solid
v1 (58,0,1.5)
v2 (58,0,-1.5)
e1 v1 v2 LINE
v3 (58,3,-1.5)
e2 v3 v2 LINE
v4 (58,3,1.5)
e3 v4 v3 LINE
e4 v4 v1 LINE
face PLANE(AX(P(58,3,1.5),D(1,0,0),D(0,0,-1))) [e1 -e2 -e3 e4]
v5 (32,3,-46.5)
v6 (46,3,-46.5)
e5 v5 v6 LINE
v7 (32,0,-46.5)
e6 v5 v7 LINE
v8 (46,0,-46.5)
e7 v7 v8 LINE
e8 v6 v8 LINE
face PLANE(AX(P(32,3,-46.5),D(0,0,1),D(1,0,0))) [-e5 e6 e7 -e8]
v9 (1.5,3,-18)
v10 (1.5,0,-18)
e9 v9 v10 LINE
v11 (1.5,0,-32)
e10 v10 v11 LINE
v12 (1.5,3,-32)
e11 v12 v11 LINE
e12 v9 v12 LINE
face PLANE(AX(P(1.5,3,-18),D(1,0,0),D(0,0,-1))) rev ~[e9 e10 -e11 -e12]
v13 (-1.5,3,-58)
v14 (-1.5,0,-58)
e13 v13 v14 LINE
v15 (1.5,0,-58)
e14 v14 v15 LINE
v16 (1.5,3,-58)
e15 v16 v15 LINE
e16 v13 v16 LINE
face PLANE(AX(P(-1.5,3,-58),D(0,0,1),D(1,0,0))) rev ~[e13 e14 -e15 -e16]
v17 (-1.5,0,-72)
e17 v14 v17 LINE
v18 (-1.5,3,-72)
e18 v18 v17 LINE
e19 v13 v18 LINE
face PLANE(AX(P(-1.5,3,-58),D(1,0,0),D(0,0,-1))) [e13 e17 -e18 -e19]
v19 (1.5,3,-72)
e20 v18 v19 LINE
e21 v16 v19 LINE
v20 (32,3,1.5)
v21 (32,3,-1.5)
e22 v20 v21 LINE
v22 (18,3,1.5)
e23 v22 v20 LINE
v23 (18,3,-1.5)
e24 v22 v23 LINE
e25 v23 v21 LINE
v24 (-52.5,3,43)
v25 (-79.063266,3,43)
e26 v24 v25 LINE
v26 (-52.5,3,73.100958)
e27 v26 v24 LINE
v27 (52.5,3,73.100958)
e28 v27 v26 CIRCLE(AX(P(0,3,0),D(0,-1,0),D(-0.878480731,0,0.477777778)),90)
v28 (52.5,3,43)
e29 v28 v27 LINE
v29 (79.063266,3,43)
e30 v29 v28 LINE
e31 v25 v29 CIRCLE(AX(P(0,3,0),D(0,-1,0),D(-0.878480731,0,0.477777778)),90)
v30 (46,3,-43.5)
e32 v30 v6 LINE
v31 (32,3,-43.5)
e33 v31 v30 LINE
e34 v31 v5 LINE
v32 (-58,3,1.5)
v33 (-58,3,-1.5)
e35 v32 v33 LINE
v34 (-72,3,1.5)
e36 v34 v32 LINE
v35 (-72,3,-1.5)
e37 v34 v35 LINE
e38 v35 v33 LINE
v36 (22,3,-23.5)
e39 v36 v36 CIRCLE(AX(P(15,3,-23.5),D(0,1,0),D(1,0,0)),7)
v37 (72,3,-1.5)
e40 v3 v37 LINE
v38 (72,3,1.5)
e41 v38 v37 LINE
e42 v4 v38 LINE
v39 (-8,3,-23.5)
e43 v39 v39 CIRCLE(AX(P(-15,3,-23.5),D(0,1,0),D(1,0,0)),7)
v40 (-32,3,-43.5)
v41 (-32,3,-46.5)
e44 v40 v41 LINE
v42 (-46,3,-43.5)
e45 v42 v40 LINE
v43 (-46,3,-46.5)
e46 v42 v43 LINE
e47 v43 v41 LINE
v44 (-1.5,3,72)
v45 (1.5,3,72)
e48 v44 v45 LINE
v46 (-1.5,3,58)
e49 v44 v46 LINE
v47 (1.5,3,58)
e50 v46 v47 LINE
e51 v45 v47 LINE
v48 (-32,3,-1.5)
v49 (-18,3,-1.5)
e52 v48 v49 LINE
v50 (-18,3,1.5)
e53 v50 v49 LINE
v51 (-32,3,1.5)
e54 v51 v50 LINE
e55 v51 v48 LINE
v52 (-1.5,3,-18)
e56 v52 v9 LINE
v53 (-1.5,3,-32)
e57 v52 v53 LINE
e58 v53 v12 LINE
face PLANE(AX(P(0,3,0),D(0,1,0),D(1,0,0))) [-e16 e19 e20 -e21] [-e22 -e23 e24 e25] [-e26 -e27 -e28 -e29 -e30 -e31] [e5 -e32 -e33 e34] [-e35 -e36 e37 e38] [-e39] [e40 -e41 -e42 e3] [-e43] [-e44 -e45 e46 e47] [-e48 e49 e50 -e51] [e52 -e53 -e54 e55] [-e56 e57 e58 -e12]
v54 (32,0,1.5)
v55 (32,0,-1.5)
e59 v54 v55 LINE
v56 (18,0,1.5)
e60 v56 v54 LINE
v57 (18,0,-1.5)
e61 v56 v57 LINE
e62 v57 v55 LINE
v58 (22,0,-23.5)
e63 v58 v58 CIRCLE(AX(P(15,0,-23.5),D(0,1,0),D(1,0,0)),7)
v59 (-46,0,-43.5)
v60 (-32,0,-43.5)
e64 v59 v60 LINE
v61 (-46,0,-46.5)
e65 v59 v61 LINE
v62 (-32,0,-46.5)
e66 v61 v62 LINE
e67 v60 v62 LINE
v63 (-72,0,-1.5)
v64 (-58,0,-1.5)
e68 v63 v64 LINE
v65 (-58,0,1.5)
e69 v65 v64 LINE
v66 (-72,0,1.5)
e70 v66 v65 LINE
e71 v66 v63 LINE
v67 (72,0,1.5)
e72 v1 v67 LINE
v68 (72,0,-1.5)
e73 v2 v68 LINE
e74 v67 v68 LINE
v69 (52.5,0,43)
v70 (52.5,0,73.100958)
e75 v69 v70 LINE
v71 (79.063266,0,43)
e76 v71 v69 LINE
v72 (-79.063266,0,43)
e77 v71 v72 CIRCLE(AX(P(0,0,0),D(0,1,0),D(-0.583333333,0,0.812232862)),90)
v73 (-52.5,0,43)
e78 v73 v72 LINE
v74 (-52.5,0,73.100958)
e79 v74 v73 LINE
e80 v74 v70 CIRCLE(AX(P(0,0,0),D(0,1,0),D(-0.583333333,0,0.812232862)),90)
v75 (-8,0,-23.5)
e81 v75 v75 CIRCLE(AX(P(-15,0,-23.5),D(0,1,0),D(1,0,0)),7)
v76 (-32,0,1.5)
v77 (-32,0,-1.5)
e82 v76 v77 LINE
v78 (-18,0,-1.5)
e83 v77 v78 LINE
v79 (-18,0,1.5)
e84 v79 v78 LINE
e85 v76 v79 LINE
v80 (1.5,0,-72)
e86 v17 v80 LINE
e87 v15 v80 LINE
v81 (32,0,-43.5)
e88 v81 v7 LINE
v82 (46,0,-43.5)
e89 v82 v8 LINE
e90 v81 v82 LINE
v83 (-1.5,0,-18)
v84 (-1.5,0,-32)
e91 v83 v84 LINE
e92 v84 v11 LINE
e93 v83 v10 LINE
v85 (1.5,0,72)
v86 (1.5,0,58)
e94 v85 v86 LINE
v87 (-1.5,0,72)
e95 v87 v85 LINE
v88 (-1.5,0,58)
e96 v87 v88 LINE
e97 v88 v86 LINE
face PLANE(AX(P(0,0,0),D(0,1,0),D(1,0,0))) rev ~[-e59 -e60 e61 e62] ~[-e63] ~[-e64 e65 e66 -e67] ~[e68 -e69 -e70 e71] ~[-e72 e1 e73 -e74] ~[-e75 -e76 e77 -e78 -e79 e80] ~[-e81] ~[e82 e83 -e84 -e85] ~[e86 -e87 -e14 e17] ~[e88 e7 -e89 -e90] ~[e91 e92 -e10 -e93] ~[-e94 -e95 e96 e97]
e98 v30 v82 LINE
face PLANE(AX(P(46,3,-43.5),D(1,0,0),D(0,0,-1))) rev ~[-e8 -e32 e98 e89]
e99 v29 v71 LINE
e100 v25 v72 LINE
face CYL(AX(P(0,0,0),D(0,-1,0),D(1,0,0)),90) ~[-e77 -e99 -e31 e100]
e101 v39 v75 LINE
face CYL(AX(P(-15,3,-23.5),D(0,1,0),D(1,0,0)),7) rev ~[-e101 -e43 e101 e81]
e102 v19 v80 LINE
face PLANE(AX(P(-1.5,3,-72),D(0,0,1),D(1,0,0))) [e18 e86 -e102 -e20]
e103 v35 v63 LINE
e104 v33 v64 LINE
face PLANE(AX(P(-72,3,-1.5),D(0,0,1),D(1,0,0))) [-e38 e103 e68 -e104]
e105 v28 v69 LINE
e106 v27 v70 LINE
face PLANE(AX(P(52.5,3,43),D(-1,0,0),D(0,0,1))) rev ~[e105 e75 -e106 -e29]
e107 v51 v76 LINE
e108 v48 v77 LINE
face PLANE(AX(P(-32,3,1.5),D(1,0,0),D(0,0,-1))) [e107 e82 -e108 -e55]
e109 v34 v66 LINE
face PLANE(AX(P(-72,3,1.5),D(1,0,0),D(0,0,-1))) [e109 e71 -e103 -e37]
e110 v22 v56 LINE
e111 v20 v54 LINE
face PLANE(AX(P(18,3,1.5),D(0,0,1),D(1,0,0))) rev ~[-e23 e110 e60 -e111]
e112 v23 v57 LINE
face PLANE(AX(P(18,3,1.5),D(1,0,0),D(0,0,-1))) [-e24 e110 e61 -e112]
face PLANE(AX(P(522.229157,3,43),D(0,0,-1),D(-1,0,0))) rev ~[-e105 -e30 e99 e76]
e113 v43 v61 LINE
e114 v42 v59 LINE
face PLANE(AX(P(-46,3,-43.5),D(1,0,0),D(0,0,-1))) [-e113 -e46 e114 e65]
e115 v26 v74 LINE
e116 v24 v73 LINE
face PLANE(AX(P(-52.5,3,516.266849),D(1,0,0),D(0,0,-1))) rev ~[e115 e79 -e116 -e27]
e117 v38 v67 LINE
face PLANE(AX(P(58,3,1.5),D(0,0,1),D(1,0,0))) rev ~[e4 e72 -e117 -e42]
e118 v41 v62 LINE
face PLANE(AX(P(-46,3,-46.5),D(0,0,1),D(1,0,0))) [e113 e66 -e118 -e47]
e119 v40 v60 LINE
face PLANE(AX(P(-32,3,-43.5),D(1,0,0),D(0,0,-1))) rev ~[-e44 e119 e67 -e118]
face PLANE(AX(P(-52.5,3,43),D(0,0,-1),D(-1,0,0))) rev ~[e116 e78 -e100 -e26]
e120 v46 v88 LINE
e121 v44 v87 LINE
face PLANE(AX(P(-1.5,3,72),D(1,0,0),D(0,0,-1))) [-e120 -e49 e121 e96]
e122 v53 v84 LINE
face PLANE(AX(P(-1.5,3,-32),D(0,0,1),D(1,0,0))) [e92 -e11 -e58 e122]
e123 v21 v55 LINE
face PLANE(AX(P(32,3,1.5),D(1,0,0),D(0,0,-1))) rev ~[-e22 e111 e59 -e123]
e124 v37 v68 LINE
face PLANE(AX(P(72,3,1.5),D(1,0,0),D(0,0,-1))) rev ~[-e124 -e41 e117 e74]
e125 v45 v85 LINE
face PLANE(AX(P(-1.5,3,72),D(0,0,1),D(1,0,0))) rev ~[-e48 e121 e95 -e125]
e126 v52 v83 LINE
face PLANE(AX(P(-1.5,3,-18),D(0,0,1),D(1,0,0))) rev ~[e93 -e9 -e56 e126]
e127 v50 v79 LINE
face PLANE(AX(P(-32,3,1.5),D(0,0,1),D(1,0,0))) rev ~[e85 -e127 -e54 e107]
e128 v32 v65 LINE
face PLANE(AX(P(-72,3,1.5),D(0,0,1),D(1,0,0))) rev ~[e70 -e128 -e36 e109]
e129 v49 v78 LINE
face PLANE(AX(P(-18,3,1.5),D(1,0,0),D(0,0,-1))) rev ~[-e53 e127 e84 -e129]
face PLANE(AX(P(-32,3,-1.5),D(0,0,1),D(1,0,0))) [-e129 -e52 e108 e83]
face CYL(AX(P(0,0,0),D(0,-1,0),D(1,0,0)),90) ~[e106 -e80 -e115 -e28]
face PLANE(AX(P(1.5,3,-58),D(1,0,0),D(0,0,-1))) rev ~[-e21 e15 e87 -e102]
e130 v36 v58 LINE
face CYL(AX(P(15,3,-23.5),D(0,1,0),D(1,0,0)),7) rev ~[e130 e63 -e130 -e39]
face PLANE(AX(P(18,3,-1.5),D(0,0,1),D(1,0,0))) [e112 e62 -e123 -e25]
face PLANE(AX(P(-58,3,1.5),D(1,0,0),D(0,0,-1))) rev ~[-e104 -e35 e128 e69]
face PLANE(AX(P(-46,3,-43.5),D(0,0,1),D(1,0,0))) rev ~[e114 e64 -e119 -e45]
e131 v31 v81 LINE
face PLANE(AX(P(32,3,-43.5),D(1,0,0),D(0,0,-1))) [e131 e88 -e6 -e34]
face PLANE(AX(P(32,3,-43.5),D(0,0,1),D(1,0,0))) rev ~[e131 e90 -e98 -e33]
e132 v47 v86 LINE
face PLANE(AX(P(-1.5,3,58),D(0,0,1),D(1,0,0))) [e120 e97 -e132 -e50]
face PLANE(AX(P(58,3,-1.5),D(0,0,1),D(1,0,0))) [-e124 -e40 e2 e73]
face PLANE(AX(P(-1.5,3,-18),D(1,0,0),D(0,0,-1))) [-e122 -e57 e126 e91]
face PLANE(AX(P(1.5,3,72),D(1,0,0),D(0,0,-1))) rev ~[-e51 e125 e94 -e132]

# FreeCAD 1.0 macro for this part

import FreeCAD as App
import Part
import Sketcher

V = App.Vector
Q = App.Units.Quantity


def add_polygon(sketch, points):
    """Adds a closed chain of lines whose ends are joined by coincident constraints."""
    first, n = sketch.GeometryCount, len(points)
    for a, b in zip(points, points[1:] + points[:1]):
        sketch.addGeometry(Part.LineSegment(App.Vector(*a, 0), App.Vector(*b, 0)), False)
    for i in range(n):
        sketch.addConstraint(Sketcher.Constraint("Coincident", first + i, 2, first + (i + 1) % n, 1))

doc = App.newDocument("Part")
body = doc.addObject("PartDesign::Body", "Body")

# Sketch on XZ plane
sketch1 = body.newObject("Sketcher::SketchObject", "Sketch")
sketch1.AttachmentSupport = (doc.getObject("XZ_Plane"), [""])
sketch1.MapMode = "FlatFace"
sketch1.addGeometry(Part.Circle(V(0, 0, 0), V(0, 0, 1), 90), False)
sketch1.addConstraint(Sketcher.Constraint("Coincident", 0, 3, -1, 1))
sketch1.addConstraint(Sketcher.Constraint("Diameter", 0, Q("180 mm")))
pad1 = body.newObject("PartDesign::Pad", "Pad")
pad1.Profile = sketch1
pad1.Length = 3
pad1.Reversed = True

# Sketch on XZ plane
sketch2 = body.newObject("Sketcher::SketchObject", "Sketch001")
sketch2.AttachmentSupport = (doc.getObject("XZ_Plane"), [""])
sketch2.MapMode = "FlatFace"
sketch2.AttachmentOffset = App.Placement(V(0, 0, -3), App.Rotation())
add_polygon(sketch2, [(-52.5, 516.266849), (-52.5, 43), (-522.229157, 43), (-1151.307155, 667.37561), (-681.577997, 1140.642459)])  # lines 0-4
sketch2.addConstraint(Sketcher.Constraint("Vertical", 0))
sketch2.addConstraint(Sketcher.Constraint("Horizontal", 1))
sketch2.addConstraint(Sketcher.Constraint("Perpendicular", 2, 3))
sketch2.addConstraint(Sketcher.Constraint("Perpendicular", 3, 4))
sketch2.addConstraint(Sketcher.Constraint("Equal", 2, 4))
sketch2.addConstraint(Sketcher.Constraint("DistanceY", -1, 1, 0, 2, Q("43 mm")))
sketch2.addConstraint(Sketcher.Constraint("DistanceX", 0, 2, -1, 1, Q("52.5 mm")))
sketch2.addConstraint(Sketcher.Constraint("DistanceY", 0, 2, 0, 1, Q("473.266849 mm")))
sketch2.addConstraint(Sketcher.Constraint("DistanceX", 1, 2, 1, 1, Q("469.729157 mm")))
sketch2.addConstraint(Sketcher.Constraint("DistanceY", -1, 1, 2, 2, Q("667.37561 mm")))
pocket1 = body.newObject("PartDesign::Pocket", "Pocket")
pocket1.Profile = sketch2
pocket1.Type = "ThroughAll"
pocket1.Midplane = True

# Sketch on XZ plane
sketch3 = body.newObject("Sketcher::SketchObject", "Sketch002")
sketch3.AttachmentSupport = (doc.getObject("XZ_Plane"), [""])
sketch3.MapMode = "FlatFace"
sketch3.AttachmentOffset = App.Placement(V(0, 0, -3), App.Rotation())
add_polygon(sketch3, [(52.5, 43), (52.5, 516.266849), (681.577997, 1140.642459), (1151.307155, 667.37561), (522.229157, 43)])  # lines 0-4
sketch3.addConstraint(Sketcher.Constraint("Vertical", 0))
sketch3.addConstraint(Sketcher.Constraint("Horizontal", 4))
sketch3.addConstraint(Sketcher.Constraint("Perpendicular", 1, 2))
sketch3.addConstraint(Sketcher.Constraint("Perpendicular", 2, 3))
sketch3.addConstraint(Sketcher.Constraint("Equal", 1, 3))
sketch3.addConstraint(Sketcher.Constraint("DistanceY", -1, 1, 3, 2, Q("43 mm")))
sketch3.addConstraint(Sketcher.Constraint("DistanceX", -1, 1, 0, 2, Q("52.5 mm")))
sketch3.addConstraint(Sketcher.Constraint("DistanceY", 0, 1, 0, 2, Q("473.266849 mm")))
sketch3.addConstraint(Sketcher.Constraint("DistanceX", 4, 2, 4, 1, Q("469.729157 mm")))
sketch3.addConstraint(Sketcher.Constraint("DistanceY", -1, 1, 1, 2, Q("1140.642459 mm")))
pocket2 = body.newObject("PartDesign::Pocket", "Pocket001")
pocket2.Profile = sketch3
pocket2.Type = "ThroughAll"
pocket2.Midplane = True

# Sketch on XZ plane
sketch4 = body.newObject("Sketcher::SketchObject", "Sketch003")
sketch4.AttachmentSupport = (doc.getObject("XZ_Plane"), [""])
sketch4.MapMode = "FlatFace"
sketch4.AttachmentOffset = App.Placement(V(0, 0, -3), App.Rotation())
add_polygon(sketch4, [(-1.5, -32), (-1.5, -18), (1.5, -18), (1.5, -32)])  # lines 0-3
sketch4.addConstraint(Sketcher.Constraint("Vertical", 0))
sketch4.addConstraint(Sketcher.Constraint("Horizontal", 1))
sketch4.addConstraint(Sketcher.Constraint("Vertical", 2))
sketch4.addConstraint(Sketcher.Constraint("Horizontal", 3))
sketch4.addConstraint(Sketcher.Constraint("DistanceX", 1, 1, 1, 2, Q("3 mm")))
sketch4.addConstraint(Sketcher.Constraint("DistanceY", 0, 1, 0, 2, Q("14 mm")))
sketch4.addConstraint(Sketcher.Constraint("DistanceY", 0, 2, -1, 1, Q("18 mm")))
sketch4.addConstraint(Sketcher.Constraint("DistanceX", 0, 2, -1, 1, Q("1.5 mm")))
pocket3 = body.newObject("PartDesign::Pocket", "Pocket002")
pocket3.Profile = sketch4
pocket3.Length = 3
pocket3.Reversed = True

# Sketch on XZ plane
sketch5 = body.newObject("Sketcher::SketchObject", "Sketch004")
sketch5.AttachmentSupport = (doc.getObject("XZ_Plane"), [""])
sketch5.MapMode = "FlatFace"
sketch5.AttachmentOffset = App.Placement(V(0, 0, -3), App.Rotation())
add_polygon(sketch5, [(-1.5, -72), (-1.5, -58), (1.5, -58), (1.5, -72)])  # lines 0-3
sketch5.addConstraint(Sketcher.Constraint("Vertical", 0))
sketch5.addConstraint(Sketcher.Constraint("Horizontal", 1))
sketch5.addConstraint(Sketcher.Constraint("Vertical", 2))
sketch5.addConstraint(Sketcher.Constraint("Horizontal", 3))
sketch5.addConstraint(Sketcher.Constraint("DistanceX", 1, 1, 1, 2, Q("3 mm")))
sketch5.addConstraint(Sketcher.Constraint("DistanceY", 0, 1, 0, 2, Q("14 mm")))
sketch5.addConstraint(Sketcher.Constraint("DistanceY", 0, 2, -1, 1, Q("58 mm")))
sketch5.addConstraint(Sketcher.Constraint("DistanceX", 0, 2, -1, 1, Q("1.5 mm")))
pocket4 = body.newObject("PartDesign::Pocket", "Pocket003")
pocket4.Profile = sketch5
pocket4.Length = 3
pocket4.Reversed = True

# Sketch on XZ plane
sketch6 = body.newObject("Sketcher::SketchObject", "Sketch005")
sketch6.AttachmentSupport = (doc.getObject("XZ_Plane"), [""])
sketch6.MapMode = "FlatFace"
sketch6.AttachmentOffset = App.Placement(V(0, 0, -3), App.Rotation())
add_polygon(sketch6, [(-1.5, 58), (-1.5, 72), (1.5, 72), (1.5, 58)])  # lines 0-3
sketch6.addConstraint(Sketcher.Constraint("Vertical", 0))
sketch6.addConstraint(Sketcher.Constraint("Horizontal", 1))
sketch6.addConstraint(Sketcher.Constraint("Vertical", 2))
sketch6.addConstraint(Sketcher.Constraint("Horizontal", 3))
sketch6.addConstraint(Sketcher.Constraint("DistanceX", 1, 1, 1, 2, Q("3 mm")))
sketch6.addConstraint(Sketcher.Constraint("DistanceY", 0, 1, 0, 2, Q("14 mm")))
sketch6.addConstraint(Sketcher.Constraint("DistanceY", -1, 1, 0, 2, Q("72 mm")))
sketch6.addConstraint(Sketcher.Constraint("DistanceX", 0, 2, -1, 1, Q("1.5 mm")))
pocket5 = body.newObject("PartDesign::Pocket", "Pocket004")
pocket5.Profile = sketch6
pocket5.Length = 3
pocket5.Reversed = True

# Sketch on XZ plane
sketch7 = body.newObject("Sketcher::SketchObject", "Sketch006")
sketch7.AttachmentSupport = (doc.getObject("XZ_Plane"), [""])
sketch7.MapMode = "FlatFace"
sketch7.AttachmentOffset = App.Placement(V(0, 0, -3), App.Rotation())
add_polygon(sketch7, [(-32, -1.5), (-32, 1.5), (-18, 1.5), (-18, -1.5)])  # lines 0-3
sketch7.addConstraint(Sketcher.Constraint("Vertical", 0))
sketch7.addConstraint(Sketcher.Constraint("Horizontal", 1))
sketch7.addConstraint(Sketcher.Constraint("Vertical", 2))
sketch7.addConstraint(Sketcher.Constraint("Horizontal", 3))
sketch7.addConstraint(Sketcher.Constraint("DistanceX", 1, 1, 1, 2, Q("14 mm")))
sketch7.addConstraint(Sketcher.Constraint("DistanceY", 0, 1, 0, 2, Q("3 mm")))
sketch7.addConstraint(Sketcher.Constraint("DistanceX", 0, 2, -1, 1, Q("32 mm")))
sketch7.addConstraint(Sketcher.Constraint("DistanceY", -1, 1, 0, 2, Q("1.5 mm")))
pocket6 = body.newObject("PartDesign::Pocket", "Pocket005")
pocket6.Profile = sketch7
pocket6.Length = 3
pocket6.Reversed = True

# Sketch on XZ plane
sketch8 = body.newObject("Sketcher::SketchObject", "Sketch007")
sketch8.AttachmentSupport = (doc.getObject("XZ_Plane"), [""])
sketch8.MapMode = "FlatFace"
sketch8.AttachmentOffset = App.Placement(V(0, 0, -3), App.Rotation())
add_polygon(sketch8, [(-72, -1.5), (-72, 1.5), (-58, 1.5), (-58, -1.5)])  # lines 0-3
sketch8.addConstraint(Sketcher.Constraint("Vertical", 0))
sketch8.addConstraint(Sketcher.Constraint("Horizontal", 1))
sketch8.addConstraint(Sketcher.Constraint("Vertical", 2))
sketch8.addConstraint(Sketcher.Constraint("Horizontal", 3))
sketch8.addConstraint(Sketcher.Constraint("DistanceX", 1, 1, 1, 2, Q("14 mm")))
sketch8.addConstraint(Sketcher.Constraint("DistanceY", 0, 1, 0, 2, Q("3 mm")))
sketch8.addConstraint(Sketcher.Constraint("DistanceX", 0, 2, -1, 1, Q("72 mm")))
sketch8.addConstraint(Sketcher.Constraint("DistanceY", -1, 1, 0, 2, Q("1.5 mm")))
pocket7 = body.newObject("PartDesign::Pocket", "Pocket006")
pocket7.Profile = sketch8
pocket7.Length = 3
pocket7.Reversed = True

# Sketch on XZ plane
sketch9 = body.newObject("Sketcher::SketchObject", "Sketch008")
sketch9.AttachmentSupport = (doc.getObject("XZ_Plane"), [""])
sketch9.MapMode = "FlatFace"
sketch9.AttachmentOffset = App.Placement(V(0, 0, -3), App.Rotation())
add_polygon(sketch9, [(18, -1.5), (18, 1.5), (32, 1.5), (32, -1.5)])  # lines 0-3
sketch9.addConstraint(Sketcher.Constraint("Vertical", 0))
sketch9.addConstraint(Sketcher.Constraint("Horizontal", 1))
sketch9.addConstraint(Sketcher.Constraint("Vertical", 2))
sketch9.addConstraint(Sketcher.Constraint("Horizontal", 3))
sketch9.addConstraint(Sketcher.Constraint("DistanceX", 1, 1, 1, 2, Q("14 mm")))
sketch9.addConstraint(Sketcher.Constraint("DistanceY", 0, 1, 0, 2, Q("3 mm")))
sketch9.addConstraint(Sketcher.Constraint("DistanceX", -1, 1, 0, 2, Q("18 mm")))
sketch9.addConstraint(Sketcher.Constraint("DistanceY", -1, 1, 0, 2, Q("1.5 mm")))
pocket8 = body.newObject("PartDesign::Pocket", "Pocket007")
pocket8.Profile = sketch9
pocket8.Length = 3
pocket8.Reversed = True

# Sketch on XZ plane
sketch10 = body.newObject("Sketcher::SketchObject", "Sketch009")
sketch10.AttachmentSupport = (doc.getObject("XZ_Plane"), [""])
sketch10.MapMode = "FlatFace"
sketch10.AttachmentOffset = App.Placement(V(0, 0, -3), App.Rotation())
add_polygon(sketch10, [(58, -1.5), (58, 1.5), (72, 1.5), (72, -1.5)])  # lines 0-3
sketch10.addConstraint(Sketcher.Constraint("Vertical", 0))
sketch10.addConstraint(Sketcher.Constraint("Horizontal", 1))
sketch10.addConstraint(Sketcher.Constraint("Vertical", 2))
sketch10.addConstraint(Sketcher.Constraint("Horizontal", 3))
sketch10.addConstraint(Sketcher.Constraint("DistanceX", 1, 1, 1, 2, Q("14 mm")))
sketch10.addConstraint(Sketcher.Constraint("DistanceY", 0, 1, 0, 2, Q("3 mm")))
sketch10.addConstraint(Sketcher.Constraint("DistanceX", -1, 1, 0, 2, Q("58 mm")))
sketch10.addConstraint(Sketcher.Constraint("DistanceY", -1, 1, 0, 2, Q("1.5 mm")))
pocket9 = body.newObject("PartDesign::Pocket", "Pocket008")
pocket9.Profile = sketch10
pocket9.Length = 3
pocket9.Reversed = True

# Sketch on XZ plane
sketch11 = body.newObject("Sketcher::SketchObject", "Sketch010")
sketch11.AttachmentSupport = (doc.getObject("XZ_Plane"), [""])
sketch11.MapMode = "FlatFace"
sketch11.AttachmentOffset = App.Placement(V(0, 0, -3), App.Rotation())
add_polygon(sketch11, [(-46, -46.5), (-46, -43.5), (-32, -43.5), (-32, -46.5)])  # lines 0-3
sketch11.addConstraint(Sketcher.Constraint("Vertical", 0))
sketch11.addConstraint(Sketcher.Constraint("Horizontal", 1))
sketch11.addConstraint(Sketcher.Constraint("Vertical", 2))
sketch11.addConstraint(Sketcher.Constraint("Horizontal", 3))
sketch11.addConstraint(Sketcher.Constraint("DistanceX", 1, 1, 1, 2, Q("14 mm")))
sketch11.addConstraint(Sketcher.Constraint("DistanceY", 0, 1, 0, 2, Q("3 mm")))
sketch11.addConstraint(Sketcher.Constraint("DistanceX", 0, 2, -1, 1, Q("46 mm")))
sketch11.addConstraint(Sketcher.Constraint("DistanceY", 0, 2, -1, 1, Q("43.5 mm")))
pocket10 = body.newObject("PartDesign::Pocket", "Pocket009")
pocket10.Profile = sketch11
pocket10.Length = 3
pocket10.Reversed = True

# Sketch on XZ plane
sketch12 = body.newObject("Sketcher::SketchObject", "Sketch011")
sketch12.AttachmentSupport = (doc.getObject("XZ_Plane"), [""])
sketch12.MapMode = "FlatFace"
sketch12.AttachmentOffset = App.Placement(V(0, 0, -3), App.Rotation())
add_polygon(sketch12, [(32, -46.5), (32, -43.5), (46, -43.5), (46, -46.5)])  # lines 0-3
sketch12.addConstraint(Sketcher.Constraint("Vertical", 0))
sketch12.addConstraint(Sketcher.Constraint("Horizontal", 1))
sketch12.addConstraint(Sketcher.Constraint("Vertical", 2))
sketch12.addConstraint(Sketcher.Constraint("Horizontal", 3))
sketch12.addConstraint(Sketcher.Constraint("DistanceX", 1, 1, 1, 2, Q("14 mm")))
sketch12.addConstraint(Sketcher.Constraint("DistanceY", 0, 1, 0, 2, Q("3 mm")))
sketch12.addConstraint(Sketcher.Constraint("DistanceX", -1, 1, 0, 2, Q("32 mm")))
sketch12.addConstraint(Sketcher.Constraint("DistanceY", 0, 2, -1, 1, Q("43.5 mm")))
pocket11 = body.newObject("PartDesign::Pocket", "Pocket010")
pocket11.Profile = sketch12
pocket11.Length = 3
pocket11.Reversed = True

# Sketch on XZ plane
sketch13 = body.newObject("Sketcher::SketchObject", "Sketch012")
sketch13.AttachmentSupport = (doc.getObject("XZ_Plane"), [""])
sketch13.MapMode = "FlatFace"
sketch13.AttachmentOffset = App.Placement(V(0, 0, -3), App.Rotation())
sketch13.addGeometry(Part.Circle(V(-15, -23.5, 0), V(0, 0, 1), 7), False)
sketch13.addGeometry(Part.Circle(V(15, -23.5, 0), V(0, 0, 1), 7), False)
sketch13.addConstraint(Sketcher.Constraint("Equal", 0, 1))
sketch13.addConstraint(Sketcher.Constraint("Symmetric", 0, 3, 1, 3, -2))
sketch13.addConstraint(Sketcher.Constraint("Diameter", 0, Q("14 mm")))
sketch13.addConstraint(Sketcher.Constraint("DistanceX", 0, 3, -1, 1, Q("15 mm")))
sketch13.addConstraint(Sketcher.Constraint("DistanceY", 0, 3, -1, 1, Q("23.5 mm")))
pocket12 = body.newObject("PartDesign::Pocket", "Pocket011")
pocket12.Profile = sketch13
pocket12.Length = 3
pocket12.Reversed = True

doc.recompute()
